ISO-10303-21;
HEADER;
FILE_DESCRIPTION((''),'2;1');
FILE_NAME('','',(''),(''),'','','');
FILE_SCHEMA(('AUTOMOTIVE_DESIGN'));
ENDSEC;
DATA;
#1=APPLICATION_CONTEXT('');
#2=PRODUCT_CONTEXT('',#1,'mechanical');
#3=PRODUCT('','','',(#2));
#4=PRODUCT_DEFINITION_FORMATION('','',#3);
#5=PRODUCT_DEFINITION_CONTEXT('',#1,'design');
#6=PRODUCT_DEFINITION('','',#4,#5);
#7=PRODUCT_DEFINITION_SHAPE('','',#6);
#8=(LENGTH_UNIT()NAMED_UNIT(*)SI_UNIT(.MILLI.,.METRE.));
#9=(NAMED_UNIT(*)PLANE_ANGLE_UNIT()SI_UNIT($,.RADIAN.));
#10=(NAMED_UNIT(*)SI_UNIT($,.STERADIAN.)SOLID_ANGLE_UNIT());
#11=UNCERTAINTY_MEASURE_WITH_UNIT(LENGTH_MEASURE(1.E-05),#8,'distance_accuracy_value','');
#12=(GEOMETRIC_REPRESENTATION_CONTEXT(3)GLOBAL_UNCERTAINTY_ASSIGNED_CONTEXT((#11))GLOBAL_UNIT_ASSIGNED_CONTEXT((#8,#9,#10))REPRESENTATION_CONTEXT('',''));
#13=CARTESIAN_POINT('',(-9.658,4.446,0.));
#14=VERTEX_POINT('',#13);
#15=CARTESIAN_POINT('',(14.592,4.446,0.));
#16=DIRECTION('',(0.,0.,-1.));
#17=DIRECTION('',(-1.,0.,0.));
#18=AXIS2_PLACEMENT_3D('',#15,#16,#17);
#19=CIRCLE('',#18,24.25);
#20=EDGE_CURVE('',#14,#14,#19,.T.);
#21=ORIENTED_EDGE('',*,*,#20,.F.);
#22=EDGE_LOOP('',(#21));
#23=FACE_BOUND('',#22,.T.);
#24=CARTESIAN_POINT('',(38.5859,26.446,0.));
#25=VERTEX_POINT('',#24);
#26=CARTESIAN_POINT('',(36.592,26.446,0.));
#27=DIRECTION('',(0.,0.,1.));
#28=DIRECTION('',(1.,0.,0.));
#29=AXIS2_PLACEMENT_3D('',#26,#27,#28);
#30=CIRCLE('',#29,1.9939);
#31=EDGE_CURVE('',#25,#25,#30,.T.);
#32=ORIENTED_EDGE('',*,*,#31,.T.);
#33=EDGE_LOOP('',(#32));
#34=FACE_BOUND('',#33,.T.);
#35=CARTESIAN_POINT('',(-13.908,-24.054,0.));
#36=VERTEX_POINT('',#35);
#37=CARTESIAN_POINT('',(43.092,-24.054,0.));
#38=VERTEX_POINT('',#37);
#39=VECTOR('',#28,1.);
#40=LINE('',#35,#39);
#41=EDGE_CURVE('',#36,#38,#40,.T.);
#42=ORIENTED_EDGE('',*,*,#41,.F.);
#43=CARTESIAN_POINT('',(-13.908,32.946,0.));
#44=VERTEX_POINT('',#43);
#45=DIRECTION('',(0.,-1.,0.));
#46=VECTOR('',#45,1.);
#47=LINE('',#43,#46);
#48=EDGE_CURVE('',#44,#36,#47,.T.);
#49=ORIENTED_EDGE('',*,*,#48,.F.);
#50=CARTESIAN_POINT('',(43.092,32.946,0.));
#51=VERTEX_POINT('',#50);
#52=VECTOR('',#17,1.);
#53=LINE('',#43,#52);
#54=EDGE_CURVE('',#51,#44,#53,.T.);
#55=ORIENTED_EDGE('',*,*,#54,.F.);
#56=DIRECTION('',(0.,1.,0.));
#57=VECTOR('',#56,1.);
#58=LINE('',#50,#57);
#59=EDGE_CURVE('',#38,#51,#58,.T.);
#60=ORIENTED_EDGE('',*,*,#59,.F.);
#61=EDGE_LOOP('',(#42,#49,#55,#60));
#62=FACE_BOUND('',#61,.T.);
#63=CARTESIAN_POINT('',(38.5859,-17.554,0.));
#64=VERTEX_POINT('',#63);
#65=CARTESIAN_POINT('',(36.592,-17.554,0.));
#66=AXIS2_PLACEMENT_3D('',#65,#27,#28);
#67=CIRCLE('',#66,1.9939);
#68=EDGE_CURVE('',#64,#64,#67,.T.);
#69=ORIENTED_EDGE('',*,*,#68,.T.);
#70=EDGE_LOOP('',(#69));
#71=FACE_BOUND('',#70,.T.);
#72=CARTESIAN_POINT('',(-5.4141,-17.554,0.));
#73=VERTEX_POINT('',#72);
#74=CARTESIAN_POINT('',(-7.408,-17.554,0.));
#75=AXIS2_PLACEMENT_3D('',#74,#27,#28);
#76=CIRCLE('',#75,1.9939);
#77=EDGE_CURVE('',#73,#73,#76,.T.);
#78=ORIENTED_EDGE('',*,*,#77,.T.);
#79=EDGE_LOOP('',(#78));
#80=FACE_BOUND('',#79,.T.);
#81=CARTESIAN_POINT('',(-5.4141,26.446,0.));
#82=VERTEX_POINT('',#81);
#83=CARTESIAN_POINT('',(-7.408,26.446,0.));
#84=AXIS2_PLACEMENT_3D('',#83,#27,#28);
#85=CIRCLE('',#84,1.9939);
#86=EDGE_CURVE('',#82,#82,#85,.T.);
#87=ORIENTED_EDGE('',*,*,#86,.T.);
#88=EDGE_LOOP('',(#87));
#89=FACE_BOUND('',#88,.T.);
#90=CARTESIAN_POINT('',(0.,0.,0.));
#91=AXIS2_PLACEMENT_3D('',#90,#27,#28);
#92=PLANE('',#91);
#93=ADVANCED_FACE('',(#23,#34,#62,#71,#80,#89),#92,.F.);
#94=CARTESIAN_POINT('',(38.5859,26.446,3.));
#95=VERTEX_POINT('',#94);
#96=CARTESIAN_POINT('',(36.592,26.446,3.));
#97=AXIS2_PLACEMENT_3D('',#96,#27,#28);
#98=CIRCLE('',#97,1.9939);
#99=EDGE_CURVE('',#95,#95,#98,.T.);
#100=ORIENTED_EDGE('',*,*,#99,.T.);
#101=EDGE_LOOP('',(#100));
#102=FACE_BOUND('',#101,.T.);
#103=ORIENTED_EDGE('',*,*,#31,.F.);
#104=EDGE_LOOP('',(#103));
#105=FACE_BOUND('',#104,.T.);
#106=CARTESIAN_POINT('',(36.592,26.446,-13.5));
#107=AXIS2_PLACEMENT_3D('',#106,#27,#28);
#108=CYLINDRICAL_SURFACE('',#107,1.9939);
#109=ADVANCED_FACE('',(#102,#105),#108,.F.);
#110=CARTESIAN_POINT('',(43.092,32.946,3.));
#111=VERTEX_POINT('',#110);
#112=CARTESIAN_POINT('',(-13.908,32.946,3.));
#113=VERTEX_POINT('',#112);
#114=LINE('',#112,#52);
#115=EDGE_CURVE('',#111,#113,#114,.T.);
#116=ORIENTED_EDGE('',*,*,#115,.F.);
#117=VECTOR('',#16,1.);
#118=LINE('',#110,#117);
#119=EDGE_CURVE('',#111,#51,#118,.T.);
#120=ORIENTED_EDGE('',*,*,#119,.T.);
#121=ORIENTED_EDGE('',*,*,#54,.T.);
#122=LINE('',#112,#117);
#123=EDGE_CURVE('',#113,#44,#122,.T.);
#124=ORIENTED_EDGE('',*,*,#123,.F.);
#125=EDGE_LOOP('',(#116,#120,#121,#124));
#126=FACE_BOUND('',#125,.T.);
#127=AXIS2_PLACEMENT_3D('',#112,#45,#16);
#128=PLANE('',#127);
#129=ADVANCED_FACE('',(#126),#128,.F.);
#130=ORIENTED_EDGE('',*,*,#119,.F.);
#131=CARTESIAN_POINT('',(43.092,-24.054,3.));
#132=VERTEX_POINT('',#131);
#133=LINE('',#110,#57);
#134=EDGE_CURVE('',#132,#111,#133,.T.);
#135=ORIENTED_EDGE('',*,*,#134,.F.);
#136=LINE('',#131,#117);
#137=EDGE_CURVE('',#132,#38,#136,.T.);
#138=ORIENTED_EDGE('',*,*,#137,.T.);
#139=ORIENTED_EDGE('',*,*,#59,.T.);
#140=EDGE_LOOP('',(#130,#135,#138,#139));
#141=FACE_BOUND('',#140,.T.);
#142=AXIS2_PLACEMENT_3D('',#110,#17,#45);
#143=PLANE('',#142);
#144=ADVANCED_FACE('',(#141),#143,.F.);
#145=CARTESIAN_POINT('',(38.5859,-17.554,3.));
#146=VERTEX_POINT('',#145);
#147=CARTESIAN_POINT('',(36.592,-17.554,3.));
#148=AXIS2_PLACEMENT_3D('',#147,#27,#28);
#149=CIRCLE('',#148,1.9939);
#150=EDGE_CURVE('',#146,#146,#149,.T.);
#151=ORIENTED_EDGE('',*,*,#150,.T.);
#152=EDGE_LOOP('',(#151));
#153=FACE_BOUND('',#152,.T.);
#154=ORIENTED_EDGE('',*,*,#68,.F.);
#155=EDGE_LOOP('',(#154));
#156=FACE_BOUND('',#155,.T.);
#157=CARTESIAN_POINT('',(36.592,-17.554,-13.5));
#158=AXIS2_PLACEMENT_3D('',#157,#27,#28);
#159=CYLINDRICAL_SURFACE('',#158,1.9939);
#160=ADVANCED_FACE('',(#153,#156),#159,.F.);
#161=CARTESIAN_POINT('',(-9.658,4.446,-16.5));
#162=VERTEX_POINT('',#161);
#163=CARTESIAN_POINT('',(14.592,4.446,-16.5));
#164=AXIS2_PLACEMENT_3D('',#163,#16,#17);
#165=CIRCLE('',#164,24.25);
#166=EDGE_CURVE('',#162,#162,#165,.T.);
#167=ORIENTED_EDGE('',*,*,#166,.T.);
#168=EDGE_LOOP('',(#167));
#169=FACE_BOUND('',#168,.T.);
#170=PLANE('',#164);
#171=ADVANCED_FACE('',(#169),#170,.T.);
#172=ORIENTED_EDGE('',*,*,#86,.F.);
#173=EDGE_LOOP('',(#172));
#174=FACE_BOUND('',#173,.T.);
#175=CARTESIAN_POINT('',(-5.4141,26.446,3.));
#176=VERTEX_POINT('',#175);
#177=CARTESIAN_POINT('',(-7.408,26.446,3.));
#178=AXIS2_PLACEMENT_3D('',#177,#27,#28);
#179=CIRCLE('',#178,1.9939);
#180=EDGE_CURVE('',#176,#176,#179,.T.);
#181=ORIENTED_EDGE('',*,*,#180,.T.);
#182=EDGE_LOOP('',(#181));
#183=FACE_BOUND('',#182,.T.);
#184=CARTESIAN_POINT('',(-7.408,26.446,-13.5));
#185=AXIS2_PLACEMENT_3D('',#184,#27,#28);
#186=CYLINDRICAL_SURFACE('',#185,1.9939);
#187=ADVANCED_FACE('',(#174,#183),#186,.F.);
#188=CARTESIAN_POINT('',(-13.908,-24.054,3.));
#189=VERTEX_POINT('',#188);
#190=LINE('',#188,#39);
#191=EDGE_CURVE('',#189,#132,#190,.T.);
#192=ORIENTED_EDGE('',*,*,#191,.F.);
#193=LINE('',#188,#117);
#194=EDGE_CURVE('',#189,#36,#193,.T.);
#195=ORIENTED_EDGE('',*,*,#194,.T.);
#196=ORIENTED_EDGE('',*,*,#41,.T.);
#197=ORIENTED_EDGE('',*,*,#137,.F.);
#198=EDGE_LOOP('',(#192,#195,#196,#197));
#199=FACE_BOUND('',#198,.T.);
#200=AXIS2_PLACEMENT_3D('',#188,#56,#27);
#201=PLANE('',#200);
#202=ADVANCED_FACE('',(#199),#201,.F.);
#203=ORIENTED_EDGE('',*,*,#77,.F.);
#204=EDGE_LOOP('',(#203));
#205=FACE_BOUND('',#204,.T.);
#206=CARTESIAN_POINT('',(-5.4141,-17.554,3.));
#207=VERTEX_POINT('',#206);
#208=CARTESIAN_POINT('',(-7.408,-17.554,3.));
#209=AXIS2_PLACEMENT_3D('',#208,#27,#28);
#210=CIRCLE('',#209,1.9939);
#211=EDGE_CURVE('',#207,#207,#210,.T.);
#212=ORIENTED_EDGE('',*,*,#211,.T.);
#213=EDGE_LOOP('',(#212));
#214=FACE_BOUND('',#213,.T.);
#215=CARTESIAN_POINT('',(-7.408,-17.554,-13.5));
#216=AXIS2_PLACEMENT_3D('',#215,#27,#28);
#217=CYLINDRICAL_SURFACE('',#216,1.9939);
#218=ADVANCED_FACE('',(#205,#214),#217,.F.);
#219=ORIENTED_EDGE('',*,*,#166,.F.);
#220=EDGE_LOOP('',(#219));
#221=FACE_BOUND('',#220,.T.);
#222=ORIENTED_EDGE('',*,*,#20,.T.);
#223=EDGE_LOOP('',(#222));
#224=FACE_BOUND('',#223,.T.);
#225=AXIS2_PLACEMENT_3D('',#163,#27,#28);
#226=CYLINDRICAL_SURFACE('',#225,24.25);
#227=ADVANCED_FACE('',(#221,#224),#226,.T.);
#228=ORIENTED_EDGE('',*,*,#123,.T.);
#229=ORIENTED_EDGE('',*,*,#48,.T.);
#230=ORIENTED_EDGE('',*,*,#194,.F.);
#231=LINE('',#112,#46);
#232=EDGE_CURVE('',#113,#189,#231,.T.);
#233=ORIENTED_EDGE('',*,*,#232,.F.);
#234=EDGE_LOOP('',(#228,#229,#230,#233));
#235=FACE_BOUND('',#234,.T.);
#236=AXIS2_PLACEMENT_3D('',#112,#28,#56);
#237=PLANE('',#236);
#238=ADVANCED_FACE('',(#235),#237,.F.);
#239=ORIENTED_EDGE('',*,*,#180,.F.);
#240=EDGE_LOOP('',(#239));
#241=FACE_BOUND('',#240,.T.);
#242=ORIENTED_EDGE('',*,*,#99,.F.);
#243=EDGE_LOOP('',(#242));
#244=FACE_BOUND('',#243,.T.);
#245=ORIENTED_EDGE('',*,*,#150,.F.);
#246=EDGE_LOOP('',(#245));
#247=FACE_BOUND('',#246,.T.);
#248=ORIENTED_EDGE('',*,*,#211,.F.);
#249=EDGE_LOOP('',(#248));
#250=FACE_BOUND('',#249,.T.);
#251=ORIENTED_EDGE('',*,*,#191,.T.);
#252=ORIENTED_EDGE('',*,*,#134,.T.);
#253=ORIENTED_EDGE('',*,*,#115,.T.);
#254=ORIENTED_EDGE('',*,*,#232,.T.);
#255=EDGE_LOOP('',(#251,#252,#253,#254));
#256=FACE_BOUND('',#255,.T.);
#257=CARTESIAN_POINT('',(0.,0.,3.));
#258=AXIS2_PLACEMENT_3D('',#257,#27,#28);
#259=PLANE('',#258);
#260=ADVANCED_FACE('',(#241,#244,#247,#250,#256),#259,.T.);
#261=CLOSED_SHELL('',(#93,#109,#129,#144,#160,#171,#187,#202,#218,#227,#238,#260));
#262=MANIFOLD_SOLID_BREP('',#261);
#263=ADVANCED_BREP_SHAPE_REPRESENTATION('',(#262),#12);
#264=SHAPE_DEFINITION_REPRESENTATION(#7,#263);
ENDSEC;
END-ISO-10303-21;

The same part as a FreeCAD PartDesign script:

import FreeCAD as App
import Part
import Sketcher
from FreeCAD import Vector
Q = App.Units.Quantity

doc = App.newDocument("Part")
body = doc.addObject("PartDesign::Body", "Body")

# Sketch on XY plane
sketch1 = doc.addObject("Sketcher::SketchObject", "Sketch")
body.addObject(sketch1)
sketch1.AttachmentSupport = (doc.XY_Plane, [""])
sketch1.MapMode = "FlatFace"
sketch1.addGeometry(Part.LineSegment(Vector(-14, 33, 0), Vector(-14, -24, 0)), False)
sketch1.addGeometry(Part.LineSegment(Vector(-14, -24, 0), Vector(43, -24, 0)), False)
sketch1.addGeometry(Part.LineSegment(Vector(43, -24, 0), Vector(43, 33, 0)), False)
sketch1.addGeometry(Part.LineSegment(Vector(43, 33, 0), Vector(-14, 33, 0)), False)
sketch1.addConstraint(Sketcher.Constraint("Coincident", 0, 2, 1, 1))
sketch1.addConstraint(Sketcher.Constraint("Coincident", 1, 2, 2, 1))
sketch1.addConstraint(Sketcher.Constraint("Coincident", 2, 2, 3, 1))
sketch1.addConstraint(Sketcher.Constraint("Coincident", 3, 2, 0, 1))
sketch1.addConstraint(Sketcher.Constraint("Vertical", 0))
sketch1.addConstraint(Sketcher.Constraint("Horizontal", 1))
sketch1.addConstraint(Sketcher.Constraint("Vertical", 2))
sketch1.addConstraint(Sketcher.Constraint("Horizontal", 3))
sketch1.addConstraint(Sketcher.Constraint("Equal", 3, 0))
sketch1.addConstraint(Sketcher.Constraint("DistanceX", 1, 1, 1, 2, Q("57 mm")))
sketch1.addConstraint(Sketcher.Constraint("DistanceX", 0, 2, -1, 1, Q("13.908 mm")))
sketch1.addConstraint(Sketcher.Constraint("DistanceY", 0, 2, -1, 1, Q("24.054 mm")))
pad1 = doc.addObject("PartDesign::Pad", "Pad")
body.addObject(pad1)
pad1.Profile = sketch1
pad1.Length = 3

# Sketch on XY plane
sketch2 = doc.addObject("Sketcher::SketchObject", "Sketch001")
body.addObject(sketch2)
sketch2.AttachmentSupport = (doc.XY_Plane, [""])
sketch2.MapMode = "FlatFace"
sketch2.addGeometry(Part.Circle(Vector(15, 4, 0), Vector(0, 0, 1), 24), False)
sketch2.addConstraint(Sketcher.Constraint("Diameter", 0, Q("48.5 mm")))
sketch2.addConstraint(Sketcher.Constraint("DistanceX", -1, 1, 0, 3, Q("14.592 mm")))
sketch2.addConstraint(Sketcher.Constraint("DistanceY", -1, 1, 0, 3, Q("4.446 mm")))
pad2 = doc.addObject("PartDesign::Pad", "Pad001")
body.addObject(pad2)
pad2.Profile = sketch2
pad2.Length = 16.5
pad2.Reversed = True

# Sketch on XY plane
sketch3 = doc.addObject("Sketcher::SketchObject", "Sketch002")
body.addObject(sketch3)
sketch3.AttachmentSupport = (doc.XY_Plane, [""])
sketch3.MapMode = "FlatFace"
sketch3.AttachmentOffset = App.Placement(Vector(0, 0, 3), App.Rotation())
sketch3.addGeometry(Part.Circle(Vector(36.6, 26.4, 0), Vector(0, 0, 1), 2), False)
sketch3.addGeometry(Part.Circle(Vector(36.6, -17.6, 0), Vector(0, 0, 1), 2), False)
sketch3.addGeometry(Part.Circle(Vector(-7.4, -17.6, 0), Vector(0, 0, 1), 2), False)
sketch3.addGeometry(Part.Circle(Vector(-7.4, 26.4, 0), Vector(0, 0, 1), 2), False)
sketch3.addConstraint(Sketcher.Constraint("Equal", 0, 1))
sketch3.addConstraint(Sketcher.Constraint("Equal", 1, 2))
sketch3.addConstraint(Sketcher.Constraint("Equal", 2, 3))
sketch3.addConstraint(Sketcher.Constraint("Horizontal", 1, 3, 2, 3))
sketch3.addConstraint(Sketcher.Constraint("Horizontal", 0, 3, 3, 3))
sketch3.addConstraint(Sketcher.Constraint("Vertical", 0, 3, 1, 3))
sketch3.addConstraint(Sketcher.Constraint("Vertical", 2, 3, 3, 3))
sketch3.addConstraint(Sketcher.Constraint("DistanceY", 1, 3, 0, 3, Q("44 mm")))
sketch3.addConstraint(Sketcher.Constraint("DistanceX", 2, 3, 1, 3, Q("44 mm")))
sketch3.addConstraint(Sketcher.Constraint("Diameter", 0, Q("3.9878 mm")))
sketch3.addConstraint(Sketcher.Constraint("DistanceX", -1, 1, 0, 3, Q("36.592 mm")))
sketch3.addConstraint(Sketcher.Constraint("DistanceY", -1, 1, 0, 3, Q("26.446 mm")))
pocket1 = doc.addObject("PartDesign::Pocket", "Pocket")
body.addObject(pocket1)
pocket1.Profile = sketch3
pocket1.Length = 16.5

doc.recompute()
